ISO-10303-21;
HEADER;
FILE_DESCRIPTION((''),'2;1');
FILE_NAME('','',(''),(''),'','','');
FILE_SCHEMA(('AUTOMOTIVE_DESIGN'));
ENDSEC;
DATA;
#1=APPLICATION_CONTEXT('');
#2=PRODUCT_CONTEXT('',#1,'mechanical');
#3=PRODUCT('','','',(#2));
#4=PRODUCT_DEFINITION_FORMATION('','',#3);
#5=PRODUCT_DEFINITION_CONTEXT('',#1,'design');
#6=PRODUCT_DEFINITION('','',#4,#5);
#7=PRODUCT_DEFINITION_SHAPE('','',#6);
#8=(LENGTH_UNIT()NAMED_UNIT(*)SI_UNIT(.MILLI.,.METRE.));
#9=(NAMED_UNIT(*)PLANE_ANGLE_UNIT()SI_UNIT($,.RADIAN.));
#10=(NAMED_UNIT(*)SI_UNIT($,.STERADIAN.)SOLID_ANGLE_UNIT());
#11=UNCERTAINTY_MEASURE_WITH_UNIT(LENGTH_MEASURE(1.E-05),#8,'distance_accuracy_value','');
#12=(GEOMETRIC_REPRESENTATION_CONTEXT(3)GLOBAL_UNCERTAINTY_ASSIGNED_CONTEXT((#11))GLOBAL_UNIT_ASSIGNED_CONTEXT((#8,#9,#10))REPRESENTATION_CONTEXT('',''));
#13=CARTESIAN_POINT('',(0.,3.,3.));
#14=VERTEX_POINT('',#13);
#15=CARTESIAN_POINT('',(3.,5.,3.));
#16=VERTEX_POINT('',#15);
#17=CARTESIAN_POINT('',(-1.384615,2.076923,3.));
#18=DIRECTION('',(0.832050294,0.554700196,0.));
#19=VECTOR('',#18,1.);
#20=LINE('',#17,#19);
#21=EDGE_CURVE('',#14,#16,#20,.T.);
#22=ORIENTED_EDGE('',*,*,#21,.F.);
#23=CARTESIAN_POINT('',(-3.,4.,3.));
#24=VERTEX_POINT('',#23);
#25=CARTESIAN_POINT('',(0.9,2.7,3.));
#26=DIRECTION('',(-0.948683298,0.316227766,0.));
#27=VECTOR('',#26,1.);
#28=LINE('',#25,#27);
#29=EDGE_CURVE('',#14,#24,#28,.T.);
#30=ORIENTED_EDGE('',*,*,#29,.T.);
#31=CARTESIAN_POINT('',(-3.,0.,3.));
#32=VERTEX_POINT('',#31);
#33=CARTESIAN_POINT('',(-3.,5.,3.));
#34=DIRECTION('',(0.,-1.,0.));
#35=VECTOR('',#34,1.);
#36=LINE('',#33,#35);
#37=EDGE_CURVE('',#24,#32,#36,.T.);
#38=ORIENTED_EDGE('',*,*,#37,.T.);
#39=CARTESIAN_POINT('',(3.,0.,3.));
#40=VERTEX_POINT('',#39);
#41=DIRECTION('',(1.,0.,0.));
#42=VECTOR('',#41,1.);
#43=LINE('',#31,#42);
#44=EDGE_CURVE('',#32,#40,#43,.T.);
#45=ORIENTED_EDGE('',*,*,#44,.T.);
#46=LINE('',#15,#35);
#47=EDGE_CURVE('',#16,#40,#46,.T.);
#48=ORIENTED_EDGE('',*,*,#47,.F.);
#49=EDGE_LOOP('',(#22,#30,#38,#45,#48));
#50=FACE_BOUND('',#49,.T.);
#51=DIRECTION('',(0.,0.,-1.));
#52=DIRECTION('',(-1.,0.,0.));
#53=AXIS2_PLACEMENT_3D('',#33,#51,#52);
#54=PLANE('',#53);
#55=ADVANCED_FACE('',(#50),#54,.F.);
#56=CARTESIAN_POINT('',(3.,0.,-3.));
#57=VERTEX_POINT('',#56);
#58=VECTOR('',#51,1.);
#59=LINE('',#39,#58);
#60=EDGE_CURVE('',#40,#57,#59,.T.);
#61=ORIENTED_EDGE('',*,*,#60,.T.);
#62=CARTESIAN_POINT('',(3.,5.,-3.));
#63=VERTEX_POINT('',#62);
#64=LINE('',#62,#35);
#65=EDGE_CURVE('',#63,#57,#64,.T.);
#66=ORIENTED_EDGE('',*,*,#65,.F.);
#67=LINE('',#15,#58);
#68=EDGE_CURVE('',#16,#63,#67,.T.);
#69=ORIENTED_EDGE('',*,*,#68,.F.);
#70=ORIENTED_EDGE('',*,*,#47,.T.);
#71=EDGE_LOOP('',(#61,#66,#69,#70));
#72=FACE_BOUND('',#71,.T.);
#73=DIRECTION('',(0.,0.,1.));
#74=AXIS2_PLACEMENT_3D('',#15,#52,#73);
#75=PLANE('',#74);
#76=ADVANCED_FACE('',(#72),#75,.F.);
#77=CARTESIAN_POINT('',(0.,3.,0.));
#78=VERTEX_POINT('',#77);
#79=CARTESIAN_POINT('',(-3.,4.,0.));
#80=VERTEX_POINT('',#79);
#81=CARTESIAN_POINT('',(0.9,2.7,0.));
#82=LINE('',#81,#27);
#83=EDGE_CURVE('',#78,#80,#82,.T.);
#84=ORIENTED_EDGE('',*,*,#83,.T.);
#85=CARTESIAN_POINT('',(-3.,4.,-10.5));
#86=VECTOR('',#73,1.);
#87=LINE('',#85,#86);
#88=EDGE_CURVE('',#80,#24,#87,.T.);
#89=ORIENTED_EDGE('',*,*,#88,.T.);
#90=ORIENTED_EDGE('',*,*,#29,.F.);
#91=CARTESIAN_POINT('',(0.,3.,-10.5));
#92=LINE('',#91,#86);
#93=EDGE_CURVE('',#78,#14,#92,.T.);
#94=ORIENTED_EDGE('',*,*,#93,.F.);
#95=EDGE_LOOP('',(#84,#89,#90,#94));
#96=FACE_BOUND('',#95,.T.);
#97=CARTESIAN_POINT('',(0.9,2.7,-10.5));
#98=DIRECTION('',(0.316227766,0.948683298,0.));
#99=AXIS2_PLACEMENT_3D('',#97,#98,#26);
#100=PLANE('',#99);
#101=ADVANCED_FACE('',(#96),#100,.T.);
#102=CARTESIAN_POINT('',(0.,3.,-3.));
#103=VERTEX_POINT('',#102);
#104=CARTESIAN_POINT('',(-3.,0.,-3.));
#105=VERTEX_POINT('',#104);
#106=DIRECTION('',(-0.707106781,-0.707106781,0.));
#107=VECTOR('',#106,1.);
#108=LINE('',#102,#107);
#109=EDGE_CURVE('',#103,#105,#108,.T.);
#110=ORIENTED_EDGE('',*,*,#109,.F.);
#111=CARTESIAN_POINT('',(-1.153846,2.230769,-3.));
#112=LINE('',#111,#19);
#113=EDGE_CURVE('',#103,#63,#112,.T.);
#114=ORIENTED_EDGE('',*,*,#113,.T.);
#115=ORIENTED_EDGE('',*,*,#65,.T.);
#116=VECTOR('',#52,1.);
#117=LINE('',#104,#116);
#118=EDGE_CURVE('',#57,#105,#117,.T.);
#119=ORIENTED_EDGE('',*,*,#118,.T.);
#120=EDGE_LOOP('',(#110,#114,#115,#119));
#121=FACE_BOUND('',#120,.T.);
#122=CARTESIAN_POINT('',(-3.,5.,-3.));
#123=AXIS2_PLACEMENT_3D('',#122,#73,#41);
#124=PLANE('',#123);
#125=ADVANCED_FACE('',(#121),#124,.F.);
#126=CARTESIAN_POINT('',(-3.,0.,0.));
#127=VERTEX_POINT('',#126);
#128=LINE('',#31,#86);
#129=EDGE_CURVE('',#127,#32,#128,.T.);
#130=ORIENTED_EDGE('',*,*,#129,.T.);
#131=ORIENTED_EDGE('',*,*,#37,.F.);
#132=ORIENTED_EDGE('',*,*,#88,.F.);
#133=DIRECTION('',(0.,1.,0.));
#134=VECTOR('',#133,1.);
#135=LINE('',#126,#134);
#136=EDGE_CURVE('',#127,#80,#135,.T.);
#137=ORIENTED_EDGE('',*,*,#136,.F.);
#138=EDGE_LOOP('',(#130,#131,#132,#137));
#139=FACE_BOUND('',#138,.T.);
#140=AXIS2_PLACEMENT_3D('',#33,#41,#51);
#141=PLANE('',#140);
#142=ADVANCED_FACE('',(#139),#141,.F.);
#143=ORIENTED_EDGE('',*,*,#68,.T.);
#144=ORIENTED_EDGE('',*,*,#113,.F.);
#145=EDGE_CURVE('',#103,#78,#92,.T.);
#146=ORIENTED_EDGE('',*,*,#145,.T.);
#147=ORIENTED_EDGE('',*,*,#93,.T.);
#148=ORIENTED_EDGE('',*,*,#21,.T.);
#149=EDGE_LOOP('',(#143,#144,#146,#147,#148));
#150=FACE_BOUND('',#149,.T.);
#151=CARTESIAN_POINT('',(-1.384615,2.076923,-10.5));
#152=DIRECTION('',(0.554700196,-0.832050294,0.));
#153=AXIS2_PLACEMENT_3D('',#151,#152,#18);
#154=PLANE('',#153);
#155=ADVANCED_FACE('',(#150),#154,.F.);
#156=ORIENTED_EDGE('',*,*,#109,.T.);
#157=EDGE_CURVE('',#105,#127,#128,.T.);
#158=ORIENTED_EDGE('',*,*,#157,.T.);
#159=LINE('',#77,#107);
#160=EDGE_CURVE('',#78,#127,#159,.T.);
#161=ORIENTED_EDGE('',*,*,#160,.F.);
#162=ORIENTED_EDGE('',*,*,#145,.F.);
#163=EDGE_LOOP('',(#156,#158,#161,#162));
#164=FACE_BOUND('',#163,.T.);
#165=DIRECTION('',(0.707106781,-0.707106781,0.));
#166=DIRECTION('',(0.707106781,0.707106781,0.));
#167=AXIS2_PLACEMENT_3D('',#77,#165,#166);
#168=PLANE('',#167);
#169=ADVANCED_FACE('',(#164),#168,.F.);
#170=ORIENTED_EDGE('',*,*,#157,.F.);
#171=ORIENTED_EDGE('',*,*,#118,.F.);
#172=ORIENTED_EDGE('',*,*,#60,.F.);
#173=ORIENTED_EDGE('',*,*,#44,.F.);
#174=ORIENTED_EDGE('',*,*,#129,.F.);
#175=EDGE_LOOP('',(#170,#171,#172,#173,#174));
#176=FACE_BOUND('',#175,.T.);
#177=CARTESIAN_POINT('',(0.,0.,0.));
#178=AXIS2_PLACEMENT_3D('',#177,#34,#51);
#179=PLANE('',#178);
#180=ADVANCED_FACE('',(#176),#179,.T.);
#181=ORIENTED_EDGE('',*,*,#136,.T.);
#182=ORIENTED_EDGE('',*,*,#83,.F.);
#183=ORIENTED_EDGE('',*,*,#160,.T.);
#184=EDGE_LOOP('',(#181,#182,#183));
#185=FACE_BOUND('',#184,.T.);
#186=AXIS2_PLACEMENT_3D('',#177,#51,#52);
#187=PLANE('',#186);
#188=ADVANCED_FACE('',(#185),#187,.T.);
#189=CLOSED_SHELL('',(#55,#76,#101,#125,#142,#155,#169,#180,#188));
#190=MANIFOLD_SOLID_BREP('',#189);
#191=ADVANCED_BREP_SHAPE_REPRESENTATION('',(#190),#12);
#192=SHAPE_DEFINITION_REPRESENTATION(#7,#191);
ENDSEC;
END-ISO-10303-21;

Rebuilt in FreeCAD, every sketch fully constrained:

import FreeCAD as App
import Part
import Sketcher
from FreeCAD import Vector
Q = App.Units.Quantity


def add_polygon(sketch, points):
    """Adds a closed chain of lines whose ends are joined by coincident constraints."""
    first, n = sketch.GeometryCount, len(points)
    for a, b in zip(points, points[1:] + points[:1]):
        sketch.addGeometry(Part.LineSegment(App.Vector(*a, 0), App.Vector(*b, 0)), False)
    for i in range(n):
        sketch.addConstraint(Sketcher.Constraint("Coincident", first + i, 2, first + (i + 1) % n, 1))

doc = App.newDocument("Part")
params = doc.addObject("Spreadsheet::Sheet", "Params")
for row, (alias, value) in enumerate([
    ("sketch1_width", "6 mm"),
    ("pad1_length", "5 mm"),
    ("sketch2_width", "6 mm"),
    ("sketch2_height", "1 mm"),
    ("pocket1_length", "13.5 mm"),
    ("sketch3_height", "6 mm"),
    ("pocket2_length", "3 mm"),
], start=1):
    params.set(f"A{row}", alias)
    params.set(f"B{row}", "=" + value)
    params.setAlias(f"B{row}", alias)

body = doc.addObject("PartDesign::Body", "Body")

sketch1 = body.newObject("Sketcher::SketchObject", "Sketch")
sketch1.AttachmentSupport = (doc.getObject("XZ_Plane"), [""])
sketch1.MapMode = "FlatFace"
add_polygon(sketch1, [(-3, -3), (-3, 3), (3, 3), (3, -3)])
sketch1.addConstraint([
    Sketcher.Constraint("Vertical", 0),
    Sketcher.Constraint("Horizontal", 1),
    Sketcher.Constraint("Vertical", 2),
    Sketcher.Constraint("Horizontal", 3),
    Sketcher.Constraint("Symmetric", 0, 2, 2, 2, -1, 1),
    Sketcher.Constraint("Equal", 3, 0),
    Sketcher.Constraint("DistanceX", 1, 1, 1, 2, Q("6 mm")),
])
sketch1.setExpression("Constraints[10]", "Params.sketch1_width")
pad1 = body.newObject("PartDesign::Pad", "Pad")
pad1.Profile = sketch1
pad1.setExpression("Length", "Params.pad1_length")
pad1.Reversed = True

sketch2 = body.newObject("Sketcher::SketchObject", "Sketch001")
sketch2.AttachmentSupport = (doc.getObject("XY_Plane"), [""])
sketch2.MapMode = "FlatFace"
sketch2.AttachmentOffset = App.Placement(Vector(0, 0, 3), App.Rotation())
add_polygon(sketch2, [(0, 3), (3, 5), (-3, 5), (-3, 4)])
sketch2.addConstraint([
    Sketcher.Constraint("Horizontal", 1),
    Sketcher.Constraint("Vertical", 2),
    Sketcher.Constraint("PointOnObject", 3, 2, -2),
    Sketcher.Constraint("DistanceX", 1, 2, 1, 1, Q("6 mm")),
    Sketcher.Constraint("DistanceY", 2, 2, 2, 1, Q("1 mm")),
    Sketcher.Constraint("DistanceX", -1, 1, 0, 2, Q("3 mm")),
    Sketcher.Constraint("DistanceY", -1, 1, 0, 2, Q("5 mm")),
    Sketcher.Constraint("DistanceY", -1, 1, 3, 2, Q("3 mm")),
])
sketch2.setExpression("Constraints[7]", "Params.sketch2_width")
sketch2.setExpression("Constraints[8]", "Params.sketch2_height")
pocket1 = body.newObject("PartDesign::Pocket", "Pocket")
pocket1.Profile = sketch2
pocket1.setExpression("Length", "Params.pocket1_length")

sketch3 = body.newObject("Sketcher::SketchObject", "Sketch002")
sketch3.AttachmentSupport = (doc.getObject("XY_Plane"), [""])
sketch3.MapMode = "FlatFace"
sketch3.AttachmentOffset = App.Placement(Vector(0, 0, -3), App.Rotation())
add_polygon(sketch3, [(0, 3), (-3, 0), (-3, 6)])
sketch3.addConstraint([
    Sketcher.Constraint("Vertical", 1),
    Sketcher.Constraint("PointOnObject", 0, 2, -1),
    Sketcher.Constraint("PointOnObject", 2, 2, -2),
    Sketcher.Constraint("Perpendicular", 0, 2),
    Sketcher.Constraint("Equal", 0, 2),
    Sketcher.Constraint("DistanceY", 1, 1, 1, 2, Q("6 mm")),
])
sketch3.setExpression("Constraints[8]", "Params.sketch3_height")
pocket2 = body.newObject("PartDesign::Pocket", "Pocket001")
pocket2.Profile = sketch3
pocket2.setExpression("Length", "Params.pocket2_length")
pocket2.Reversed = True

doc.recompute()
